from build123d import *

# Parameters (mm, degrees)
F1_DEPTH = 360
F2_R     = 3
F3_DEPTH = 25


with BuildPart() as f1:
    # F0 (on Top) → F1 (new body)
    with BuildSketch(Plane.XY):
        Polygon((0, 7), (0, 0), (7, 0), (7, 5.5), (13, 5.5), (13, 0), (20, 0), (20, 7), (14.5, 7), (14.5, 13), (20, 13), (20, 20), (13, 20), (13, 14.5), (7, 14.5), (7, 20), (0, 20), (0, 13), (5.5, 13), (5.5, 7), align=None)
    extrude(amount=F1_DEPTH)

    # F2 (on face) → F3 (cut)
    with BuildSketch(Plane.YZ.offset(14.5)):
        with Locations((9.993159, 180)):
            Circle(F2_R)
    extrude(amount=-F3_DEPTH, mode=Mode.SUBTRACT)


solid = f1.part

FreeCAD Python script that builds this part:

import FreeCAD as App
import Part
import Sketcher
from FreeCAD import Vector


def add_polygon(sketch, points):
    """Adds a closed chain of lines whose ends are joined by coincident constraints."""
    first, n = sketch.GeometryCount, len(points)
    for a, b in zip(points, points[1:] + points[:1]):
        sketch.addGeometry(Part.LineSegment(App.Vector(*a, 0), App.Vector(*b, 0)), False)
    for i in range(n):
        sketch.addConstraint(Sketcher.Constraint("Coincident", first + i, 2, first + (i + 1) % n, 1))

doc = App.newDocument("Part")
body = doc.addObject("PartDesign::Body", "Body")

sketch1 = body.newObject("Sketcher::SketchObject", "Sketch")
sketch1.AttachmentSupport = (doc.getObject("XY_Plane"), [""])
sketch1.MapMode = "FlatFace"
add_polygon(sketch1, [(0, 7), (0, 0), (7, 0), (7, 6), (13, 6), (13, 0), (20, 0), (20, 7), (14, 7), (14, 13), (20, 13), (20, 20), (13, 20), (13, 14), (7, 14), (7, 20), (0, 20), (0, 13), (6, 13), (6, 7)])
sketch1.addConstraint(Sketcher.Constraint("Vertical", 0))
sketch1.addConstraint(Sketcher.Constraint("Horizontal", 1))
sketch1.addConstraint(Sketcher.Constraint("Vertical", 2))
sketch1.addConstraint(Sketcher.Constraint("Horizontal", 3))
sketch1.addConstraint(Sketcher.Constraint("Vertical", 4))
sketch1.addConstraint(Sketcher.Constraint("Horizontal", 5))
sketch1.addConstraint(Sketcher.Constraint("Vertical", 6))
sketch1.addConstraint(Sketcher.Constraint("Horizontal", 7))
sketch1.addConstraint(Sketcher.Constraint("Vertical", 8))
sketch1.addConstraint(Sketcher.Constraint("Horizontal", 9))
sketch1.addConstraint(Sketcher.Constraint("Vertical", 10))
sketch1.addConstraint(Sketcher.Constraint("Horizontal", 11))
sketch1.addConstraint(Sketcher.Constraint("Vertical", 12))
sketch1.addConstraint(Sketcher.Constraint("Horizontal", 13))
sketch1.addConstraint(Sketcher.Constraint("Vertical", 14))
sketch1.addConstraint(Sketcher.Constraint("Horizontal", 15))
sketch1.addConstraint(Sketcher.Constraint("Vertical", 16))
sketch1.addConstraint(Sketcher.Constraint("Horizontal", 17))
sketch1.addConstraint(Sketcher.Constraint("Vertical", 18))
sketch1.addConstraint(Sketcher.Constraint("Horizontal", 19))
sketch1.addConstraint(Sketcher.Constraint("Coincident", 0, 2, -1, 1))
sketch1.addConstraint(Sketcher.Constraint("PointOnObject", 4, 2, -1))
sketch1.addConstraint(Sketcher.Constraint("PointOnObject", 15, 2, -2))
sketch1.addConstraint(Sketcher.Constraint("Horizontal", 11, 2, 14, 2))
sketch1.addConstraint(Sketcher.Constraint("Horizontal", 9, 2, 16, 2))
sketch1.addConstraint(Sketcher.Constraint("Horizontal", 7, 2, 18, 2))
sketch1.addConstraint(Sketcher.Constraint("Vertical", 6, 2, 9, 2))
sketch1.addConstraint(Sketcher.Constraint("Vertical", 4, 2, 11, 2))
sketch1.addConstraint(Sketcher.Constraint("Vertical", 2, 2, 13, 2))
sketch1.addConstraint(Sketcher.Constraint("Equal", 1, 5))
sketch1.addConstraint(Sketcher.Constraint("Equal", 9, 17))
sketch1.addConstraint(Sketcher.Constraint("Equal", 15, 0))
sketch1.addConstraint(Sketcher.Constraint("Equal", 19, 2))
sketch1.addConstraint(Sketcher.Constraint("Equal", 13, 8))
sketch1.addConstraint(Sketcher.Constraint("Equal", 6, 10))
sketch1.addConstraint(Sketcher.Constraint("Equal", 4, 12))
sketch1.addConstraint(Sketcher.Constraint("DistanceX", 1, 1, 1, 2, 7.0))
sketch1.addConstraint(Sketcher.Constraint("DistanceX", 3, 1, 3, 2, 6.0))
sketch1.addConstraint(Sketcher.Constraint("DistanceX", 7, 2, 7, 1, 5.5))
pad1 = body.newObject("PartDesign::Pad", "Pad")
pad1.Profile = sketch1
pad1.Length = 360

sketch2 = body.newObject("Sketcher::SketchObject", "Sketch001")
sketch2.AttachmentSupport = (doc.getObject("YZ_Plane"), [""])
sketch2.MapMode = "FlatFace"
sketch2.AttachmentOffset = App.Placement(Vector(0, 0, 14.5), App.Rotation())
sketch2.addGeometry(Part.Circle(Vector(10, 180, 0), Vector(0, 0, 1), 3), False)
sketch2.addConstraint(Sketcher.Constraint("Diameter", 0, 6.0))
sketch2.addConstraint(Sketcher.Constraint("DistanceY", -1, 1, 0, 3, 180.0))
sketch2.addConstraint(Sketcher.Constraint("DistanceX", -1, 1, 0, 3, 9.993159))
pocket1 = body.newObject("PartDesign::Pocket", "Pocket")
pocket1.Profile = sketch2
pocket1.Length = 25

doc.recompute()
